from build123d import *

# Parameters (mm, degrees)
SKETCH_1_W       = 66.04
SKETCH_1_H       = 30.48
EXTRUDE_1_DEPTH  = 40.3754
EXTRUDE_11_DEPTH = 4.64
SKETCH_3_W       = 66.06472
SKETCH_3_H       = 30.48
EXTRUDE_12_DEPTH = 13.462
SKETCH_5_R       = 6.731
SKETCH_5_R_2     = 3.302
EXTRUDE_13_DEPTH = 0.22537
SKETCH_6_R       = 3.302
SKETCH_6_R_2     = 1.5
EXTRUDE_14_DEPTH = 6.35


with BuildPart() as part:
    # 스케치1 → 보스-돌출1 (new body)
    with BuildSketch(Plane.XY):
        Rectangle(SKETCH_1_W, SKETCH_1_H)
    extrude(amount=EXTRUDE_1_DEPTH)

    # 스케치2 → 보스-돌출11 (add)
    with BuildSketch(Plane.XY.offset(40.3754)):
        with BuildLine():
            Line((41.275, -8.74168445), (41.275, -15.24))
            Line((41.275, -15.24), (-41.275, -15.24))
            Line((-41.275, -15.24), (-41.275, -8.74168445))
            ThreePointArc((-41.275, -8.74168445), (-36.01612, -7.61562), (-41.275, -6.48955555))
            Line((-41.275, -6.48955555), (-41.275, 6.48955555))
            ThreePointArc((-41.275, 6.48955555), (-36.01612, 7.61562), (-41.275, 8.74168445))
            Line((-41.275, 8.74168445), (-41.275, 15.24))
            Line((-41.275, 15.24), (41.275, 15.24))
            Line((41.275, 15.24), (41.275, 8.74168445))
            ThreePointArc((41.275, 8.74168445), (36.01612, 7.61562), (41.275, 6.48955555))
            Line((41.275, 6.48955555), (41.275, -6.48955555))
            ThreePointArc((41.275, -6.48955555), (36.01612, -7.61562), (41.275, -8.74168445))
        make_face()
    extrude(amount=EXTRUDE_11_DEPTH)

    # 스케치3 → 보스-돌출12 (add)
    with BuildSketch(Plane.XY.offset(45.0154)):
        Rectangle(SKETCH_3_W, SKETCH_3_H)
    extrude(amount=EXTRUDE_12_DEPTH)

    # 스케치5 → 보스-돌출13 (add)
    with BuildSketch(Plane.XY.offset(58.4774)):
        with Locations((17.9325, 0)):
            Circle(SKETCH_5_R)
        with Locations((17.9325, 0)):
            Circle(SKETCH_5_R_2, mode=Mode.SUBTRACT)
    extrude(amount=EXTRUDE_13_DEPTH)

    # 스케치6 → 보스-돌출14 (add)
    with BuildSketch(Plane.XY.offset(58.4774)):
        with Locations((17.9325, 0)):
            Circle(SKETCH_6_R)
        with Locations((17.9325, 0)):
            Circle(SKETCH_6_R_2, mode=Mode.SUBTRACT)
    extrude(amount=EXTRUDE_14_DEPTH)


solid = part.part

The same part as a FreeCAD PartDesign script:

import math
import FreeCAD as App
import Part
import Sketcher

V = App.Vector
Q = App.Units.Quantity


def add_polygon(sketch, points):
    """Adds a closed chain of lines whose ends are joined by coincident constraints."""
    first, n = sketch.GeometryCount, len(points)
    for a, b in zip(points, points[1:] + points[:1]):
        sketch.addGeometry(Part.LineSegment(App.Vector(*a, 0), App.Vector(*b, 0)), False)
    for i in range(n):
        sketch.addConstraint(Sketcher.Constraint("Coincident", first + i, 2, first + (i + 1) % n, 1))

doc = App.newDocument("Part")
body = doc.addObject("PartDesign::Body", "Body")

sketch1 = body.newObject("Sketcher::SketchObject", "Sketch")
sketch1.AttachmentSupport = (doc.getObject("XY_Plane"), [""])
sketch1.MapMode = "FlatFace"
add_polygon(sketch1, [(-33, 15), (-33, -15), (33, -15), (33, 15)])
sketch1.addConstraint(Sketcher.Constraint("Vertical", 0))
sketch1.addConstraint(Sketcher.Constraint("Horizontal", 1))
sketch1.addConstraint(Sketcher.Constraint("Vertical", 2))
sketch1.addConstraint(Sketcher.Constraint("Horizontal", 3))
sketch1.addConstraint(Sketcher.Constraint("Symmetric", 0, 2, 2, 2, -1, 1))
sketch1.addConstraint(Sketcher.Constraint("DistanceX", 1, 1, 1, 2, Q("2.6 in")))
sketch1.addConstraint(Sketcher.Constraint("DistanceY", 0, 2, 0, 1, Q("1.2 in")))
pad1 = body.newObject("PartDesign::Pad", "Pad")
pad1.Profile = sketch1
pad1.Length = 40.3754

sketch2 = body.newObject("Sketcher::SketchObject", "Sketch001")
sketch2.AttachmentSupport = (doc.getObject("XY_Plane"), [""])
sketch2.MapMode = "FlatFace"
sketch2.AttachmentOffset = App.Placement(V(0, 0, 40.3754), App.Rotation())
sketch2.addGeometry(Part.LineSegment(V(41.3, -15.2, 0), V(41.3, -8.7, 0)), False)
sketch2.addGeometry(Part.ArcOfCircle(Part.Circle(V(38.8, -7.6, 0), V(0, 0, 1), 2.8), math.radians(24), math.radians(336)), False)
sketch2.addGeometry(Part.LineSegment(V(41.3, -6.5, 0), V(41.3, 6.5, 0)), False)
sketch2.addGeometry(Part.ArcOfCircle(Part.Circle(V(38.8, 7.6, 0), V(0, 0, 1), 2.8), math.radians(24), math.radians(336)), False)
sketch2.addGeometry(Part.LineSegment(V(41.3, 8.7, 0), V(41.3, 15.2, 0)), False)
sketch2.addGeometry(Part.LineSegment(V(41.3, 15.2, 0), V(-41.3, 15.2, 0)), False)
sketch2.addGeometry(Part.LineSegment(V(-41.3, 15.2, 0), V(-41.3, 8.7, 0)), False)
sketch2.addGeometry(Part.ArcOfCircle(Part.Circle(V(-38.8, 7.6, 0), V(0, 0, 1), 2.8), math.radians(-156), math.radians(156)), False)
sketch2.addGeometry(Part.LineSegment(V(-41.3, 6.5, 0), V(-41.3, -6.5, 0)), False)
sketch2.addGeometry(Part.ArcOfCircle(Part.Circle(V(-38.8, -7.6, 0), V(0, 0, 1), 2.8), math.radians(-156), math.radians(156)), False)
sketch2.addGeometry(Part.LineSegment(V(-41.3, -8.7, 0), V(-41.3, -15.2, 0)), False)
sketch2.addGeometry(Part.LineSegment(V(-41.3, -15.2, 0), V(41.3, -15.2, 0)), False)
sketch2.addConstraint(Sketcher.Constraint("Coincident", 0, 2, 1, 2))
sketch2.addConstraint(Sketcher.Constraint("Coincident", 1, 1, 2, 1))
sketch2.addConstraint(Sketcher.Constraint("Coincident", 2, 2, 3, 2))
sketch2.addConstraint(Sketcher.Constraint("Coincident", 3, 1, 4, 1))
sketch2.addConstraint(Sketcher.Constraint("Coincident", 4, 2, 5, 1))
sketch2.addConstraint(Sketcher.Constraint("Coincident", 5, 2, 6, 1))
sketch2.addConstraint(Sketcher.Constraint("Coincident", 6, 2, 7, 2))
sketch2.addConstraint(Sketcher.Constraint("Coincident", 7, 1, 8, 1))
sketch2.addConstraint(Sketcher.Constraint("Coincident", 8, 2, 9, 2))
sketch2.addConstraint(Sketcher.Constraint("Coincident", 9, 1, 10, 1))
sketch2.addConstraint(Sketcher.Constraint("Coincident", 10, 2, 11, 1))
sketch2.addConstraint(Sketcher.Constraint("Coincident", 11, 2, 0, 1))
sketch2.addConstraint(Sketcher.Constraint("Vertical", 0))
sketch2.addConstraint(Sketcher.Constraint("Vertical", 2))
sketch2.addConstraint(Sketcher.Constraint("Vertical", 4))
sketch2.addConstraint(Sketcher.Constraint("Horizontal", 5))
sketch2.addConstraint(Sketcher.Constraint("Vertical", 6))
sketch2.addConstraint(Sketcher.Constraint("Vertical", 8))
sketch2.addConstraint(Sketcher.Constraint("Vertical", 10))
sketch2.addConstraint(Sketcher.Constraint("Horizontal", 11))
sketch2.addConstraint(Sketcher.Constraint("Equal", 1, 3))
sketch2.addConstraint(Sketcher.Constraint("Equal", 3, 7))
sketch2.addConstraint(Sketcher.Constraint("Equal", 7, 9))
sketch2.addConstraint(Sketcher.Constraint("Symmetric", 1, 3, 7, 3, -1, 1))
sketch2.addConstraint(Sketcher.Constraint("Symmetric", 3, 3, 9, 3, -1, 1))
sketch2.addConstraint(Sketcher.Constraint("Symmetric", 4, 2, 10, 2, -1, 1))
sketch2.addConstraint(Sketcher.Constraint("Symmetric", 3, 3, 7, 3, -2))
sketch2.addConstraint(Sketcher.Constraint("Horizontal", 3, 1, 6, 2))
sketch2.addConstraint(Sketcher.Constraint("Horizontal", 2, 2, 7, 1))
sketch2.addConstraint(Sketcher.Constraint("Horizontal", 0, 2, 9, 1))
sketch2.addConstraint(Sketcher.Constraint("Vertical", 0, 2, 1, 1))
sketch2.addConstraint(Sketcher.Constraint("DistanceX", 5, 2, 5, 1, Q("3.25 in")))
sketch2.addConstraint(Sketcher.Constraint("DistanceY", -1, 1, 4, 2, Q("0.6 in")))
sketch2.addConstraint(Sketcher.Constraint("Radius", 1, 2.75))
sketch2.addConstraint(Sketcher.Constraint("DistanceY", 2, 1, 2, 2, 12.979111))
sketch2.addConstraint(Sketcher.Constraint("DistanceY", 0, 1, 0, 2, 6.498316))
pad2 = body.newObject("PartDesign::Pad", "Pad001")
pad2.Profile = sketch2
pad2.Length = 4.64

sketch3 = body.newObject("Sketcher::SketchObject", "Sketch002")
sketch3.AttachmentSupport = (doc.getObject("XY_Plane"), [""])
sketch3.MapMode = "FlatFace"
sketch3.AttachmentOffset = App.Placement(V(0, 0, 45.0154), App.Rotation())
add_polygon(sketch3, [(-33, 15), (-33, -15), (33, -15), (33, 15)])
sketch3.addConstraint(Sketcher.Constraint("Vertical", 0))
sketch3.addConstraint(Sketcher.Constraint("Horizontal", 1))
sketch3.addConstraint(Sketcher.Constraint("Vertical", 2))
sketch3.addConstraint(Sketcher.Constraint("Horizontal", 3))
sketch3.addConstraint(Sketcher.Constraint("Symmetric", 0, 2, 2, 2, -1, 1))
sketch3.addConstraint(Sketcher.Constraint("DistanceY", 0, 2, 0, 1, Q("1.2 in")))
sketch3.addConstraint(Sketcher.Constraint("DistanceX", 1, 1, 1, 2, 66.06472))
pad3 = body.newObject("PartDesign::Pad", "Pad002")
pad3.Profile = sketch3
pad3.Length = Q("0.53 in")

sketch4 = body.newObject("Sketcher::SketchObject", "Sketch003")
sketch4.AttachmentSupport = (doc.getObject("XY_Plane"), [""])
sketch4.MapMode = "FlatFace"
sketch4.AttachmentOffset = App.Placement(V(0, 0, 58.4774), App.Rotation())
sketch4.addGeometry(Part.Circle(V(17.9, 0, 0), V(0, 0, 1), 6.7), False)
sketch4.addGeometry(Part.Circle(V(17.9, 0, 0), V(0, 0, 1), 3.3), False)
sketch4.addConstraint(Sketcher.Constraint("Coincident", 1, 3, 0, 3))
sketch4.addConstraint(Sketcher.Constraint("PointOnObject", 0, 3, -1))
sketch4.addConstraint(Sketcher.Constraint("Diameter", 0, Q("0.53 in")))
sketch4.addConstraint(Sketcher.Constraint("Diameter", 1, Q("0.26 in")))
sketch4.addConstraint(Sketcher.Constraint("DistanceX", -1, 1, 0, 3, 17.9325))
pad4 = body.newObject("PartDesign::Pad", "Pad003")
pad4.Profile = sketch4
pad4.Length = 0.22537

sketch5 = body.newObject("Sketcher::SketchObject", "Sketch004")
sketch5.AttachmentSupport = (doc.getObject("XY_Plane"), [""])
sketch5.MapMode = "FlatFace"
sketch5.AttachmentOffset = App.Placement(V(0, 0, 58.4774), App.Rotation())
sketch5.addGeometry(Part.Circle(V(17.9, 0, 0), V(0, 0, 1), 3.3), False)
sketch5.addGeometry(Part.Circle(V(17.9, 0, 0), V(0, 0, 1), 1.5), False)
sketch5.addConstraint(Sketcher.Constraint("Coincident", 1, 3, 0, 3))
sketch5.addConstraint(Sketcher.Constraint("PointOnObject", 0, 3, -1))
sketch5.addConstraint(Sketcher.Constraint("Diameter", 0, Q("0.26 in")))
sketch5.addConstraint(Sketcher.Constraint("Diameter", 1, 3.0))
sketch5.addConstraint(Sketcher.Constraint("DistanceX", -1, 1, 0, 3, 17.9325))
pad5 = body.newObject("PartDesign::Pad", "Pad004")
pad5.Profile = sketch5
pad5.Length = Q("0.25 in")

doc.recompute()
